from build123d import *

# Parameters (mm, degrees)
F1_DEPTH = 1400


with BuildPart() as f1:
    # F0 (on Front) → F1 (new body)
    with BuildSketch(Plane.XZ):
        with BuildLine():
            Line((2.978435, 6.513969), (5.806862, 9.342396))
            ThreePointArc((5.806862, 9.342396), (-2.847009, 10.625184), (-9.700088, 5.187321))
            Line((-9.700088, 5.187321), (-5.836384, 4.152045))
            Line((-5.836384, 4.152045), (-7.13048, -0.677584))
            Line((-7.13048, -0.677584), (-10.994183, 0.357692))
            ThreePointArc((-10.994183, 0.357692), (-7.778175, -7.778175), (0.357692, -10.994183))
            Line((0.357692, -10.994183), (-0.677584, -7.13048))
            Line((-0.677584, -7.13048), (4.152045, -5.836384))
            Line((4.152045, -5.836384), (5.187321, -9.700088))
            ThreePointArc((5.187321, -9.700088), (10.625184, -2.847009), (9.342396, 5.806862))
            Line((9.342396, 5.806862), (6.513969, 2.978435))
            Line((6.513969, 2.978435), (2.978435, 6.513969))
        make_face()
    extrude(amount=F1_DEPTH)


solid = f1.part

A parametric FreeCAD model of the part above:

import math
import FreeCAD as App
import Part
import Sketcher
Q = App.Units.Quantity

doc = App.newDocument("Part")
body = doc.addObject("PartDesign::Body", "Body")

sketch1 = body.newObject("Sketcher::SketchObject", "Sketch")
sketch1.AttachmentSupport = (doc.getObject("XZ_Plane"), [""])
sketch1.MapMode = "FlatFace"
sketch1.addGeometry(Part.LineSegment(App.Vector(3, 6.5, 0), App.Vector(5.8, 9.3, 0)), False)
sketch1.addGeometry(Part.ArcOfCircle(Part.Circle(App.Vector(0, 0, 0), App.Vector(0, 0, 1), 11), math.radians(58), math.radians(152)), False)
sketch1.addGeometry(Part.LineSegment(App.Vector(-9.7, 5.2, 0), App.Vector(-5.8, 4.2, 0)), False)
sketch1.addGeometry(Part.LineSegment(App.Vector(-5.8, 4.2, 0), App.Vector(-7.1, -0.7, 0)), False)
sketch1.addGeometry(Part.LineSegment(App.Vector(-7.1, -0.7, 0), App.Vector(-11, 0.4, 0)), False)
sketch1.addGeometry(Part.ArcOfCircle(Part.Circle(App.Vector(0, 0, 0), App.Vector(0, 0, 1), 11), math.radians(178), math.radians(272)), False)
sketch1.addGeometry(Part.LineSegment(App.Vector(0.4, -11, 0), App.Vector(-0.7, -7.1, 0)), False)
sketch1.addGeometry(Part.LineSegment(App.Vector(-0.7, -7.1, 0), App.Vector(4.2, -5.8, 0)), False)
sketch1.addGeometry(Part.LineSegment(App.Vector(4.2, -5.8, 0), App.Vector(5.2, -9.7, 0)), False)
sketch1.addGeometry(Part.ArcOfCircle(Part.Circle(App.Vector(0, 0, 0), App.Vector(0, 0, 1), 11), math.radians(-62), math.radians(32)), False)
sketch1.addGeometry(Part.LineSegment(App.Vector(9.3, 5.8, 0), App.Vector(6.5, 3, 0)), False)
sketch1.addGeometry(Part.LineSegment(App.Vector(6.5, 3, 0), App.Vector(3, 6.5, 0)), False)
sketch1.addConstraint(Sketcher.Constraint("Coincident", 0, 2, 1, 1))
sketch1.addConstraint(Sketcher.Constraint("Coincident", 1, 2, 2, 1))
sketch1.addConstraint(Sketcher.Constraint("Coincident", 2, 2, 3, 1))
sketch1.addConstraint(Sketcher.Constraint("Coincident", 3, 2, 4, 1))
sketch1.addConstraint(Sketcher.Constraint("Coincident", 4, 2, 5, 1))
sketch1.addConstraint(Sketcher.Constraint("Coincident", 5, 2, 6, 1))
sketch1.addConstraint(Sketcher.Constraint("Coincident", 6, 2, 7, 1))
sketch1.addConstraint(Sketcher.Constraint("Coincident", 7, 2, 8, 1))
sketch1.addConstraint(Sketcher.Constraint("Coincident", 8, 2, 9, 1))
sketch1.addConstraint(Sketcher.Constraint("Coincident", 9, 2, 10, 1))
sketch1.addConstraint(Sketcher.Constraint("Coincident", 10, 2, 11, 1))
sketch1.addConstraint(Sketcher.Constraint("Coincident", 11, 2, 0, 1))
sketch1.addConstraint(Sketcher.Constraint("Coincident", 1, 3, -1, 1))
sketch1.addConstraint(Sketcher.Constraint("Coincident", 5, 3, -1, 1))
sketch1.addConstraint(Sketcher.Constraint("Coincident", 9, 3, -1, 1))
sketch1.addConstraint(Sketcher.Constraint("Equal", 1, 9))
sketch1.addConstraint(Sketcher.Constraint("Perpendicular", 2, 3))
sketch1.addConstraint(Sketcher.Constraint("Perpendicular", 3, 4))
sketch1.addConstraint(Sketcher.Constraint("Perpendicular", 6, 7))
sketch1.addConstraint(Sketcher.Constraint("Perpendicular", 7, 8))
sketch1.addConstraint(Sketcher.Constraint("Parallel", 0, 10))
sketch1.addConstraint(Sketcher.Constraint("Perpendicular", 10, 11))
sketch1.addConstraint(Sketcher.Constraint("Equal", 0, 2))
sketch1.addConstraint(Sketcher.Constraint("Equal", 2, 4))
sketch1.addConstraint(Sketcher.Constraint("Equal", 4, 6))
sketch1.addConstraint(Sketcher.Constraint("Equal", 3, 7))
sketch1.addConstraint(Sketcher.Constraint("Equal", 6, 8))
sketch1.addConstraint(Sketcher.Constraint("Equal", 8, 10))
sketch1.addConstraint(Sketcher.Constraint("Equal", 7, 11))
sketch1.addConstraint(Sketcher.Constraint("Radius", 1, Q("11.000002 mm")))
sketch1.addConstraint(Sketcher.Constraint("Radius", 5, Q("10.999999 mm")))
sketch1.addConstraint(Sketcher.Constraint("Angle", 0, Q("45 deg")))
sketch1.addConstraint(Sketcher.Constraint("Angle", 2, Q("-14.999995 deg")))
sketch1.addConstraint(Sketcher.Constraint("Angle", 6, Q("104.999999 deg")))
sketch1.addConstraint(Sketcher.Constraint("Distance", 0, Q("4 mm")))
sketch1.addConstraint(Sketcher.Constraint("Distance", 3, Q("5 mm")))
pad1 = body.newObject("PartDesign::Pad", "Pad")
pad1.Profile = sketch1
pad1.Length = 1400

doc.recompute()
